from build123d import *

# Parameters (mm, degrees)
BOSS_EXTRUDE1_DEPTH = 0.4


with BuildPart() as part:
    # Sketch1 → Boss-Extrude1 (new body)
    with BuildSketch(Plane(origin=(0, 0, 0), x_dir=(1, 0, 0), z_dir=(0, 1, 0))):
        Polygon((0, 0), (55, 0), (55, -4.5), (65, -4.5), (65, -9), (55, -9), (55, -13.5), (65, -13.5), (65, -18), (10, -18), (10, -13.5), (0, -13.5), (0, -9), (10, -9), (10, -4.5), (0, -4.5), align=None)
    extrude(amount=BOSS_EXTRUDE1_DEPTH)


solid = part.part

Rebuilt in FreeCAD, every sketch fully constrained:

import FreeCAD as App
import Part
import Sketcher

doc = App.newDocument("Part")
params = doc.addObject("Spreadsheet::Sheet", "Params")
for row, (alias, value) in enumerate([
    ("sketch1_width", "55 mm"),
    ("sketch1_width2", "10 mm"),
    ("sketch1_height", "4.5 mm"),
    ("pad1_length", "0.4 mm"),
], start=1):
    params.set(f"A{row}", alias)
    params.set(f"B{row}", "=" + value)
    params.setAlias(f"B{row}", alias)

body = doc.addObject("PartDesign::Body", "Body")

# Sketch on XZ plane
sketch1 = body.newObject("Sketcher::SketchObject", "Sketch")
sketch1.AttachmentSupport = (doc.getObject("XZ_Plane"), [""])
sketch1.MapMode = "FlatFace"
sketch1.addGeometry([
    Part.LineSegment(App.Vector(55, 0, 0), App.Vector(0, 0, 0)),  # 0
    Part.LineSegment(App.Vector(0, 0, 0), App.Vector(0, 4.5, 0)),  # 1
    Part.LineSegment(App.Vector(0, 4.5, 0), App.Vector(10, 4.5, 0)),  # 2
    Part.LineSegment(App.Vector(10, 4.5, 0), App.Vector(10, 9, 0)),  # 3
    Part.LineSegment(App.Vector(10, 9, 0), App.Vector(0, 9, 0)),  # 4
    Part.LineSegment(App.Vector(0, 9, 0), App.Vector(0, 13.5, 0)),  # 5
    Part.LineSegment(App.Vector(0, 13.5, 0), App.Vector(10, 13.5, 0)),  # 6
    Part.LineSegment(App.Vector(10, 13.5, 0), App.Vector(10, 18, 0)),  # 7
    Part.LineSegment(App.Vector(10, 18, 0), App.Vector(65, 18, 0)),  # 8
    Part.LineSegment(App.Vector(65, 18, 0), App.Vector(65, 13.5, 0)),  # 9
    Part.LineSegment(App.Vector(65, 13.5, 0), App.Vector(55, 13.5, 0)),  # 10
    Part.LineSegment(App.Vector(55, 13.5, 0), App.Vector(55, 9, 0)),  # 11
    Part.LineSegment(App.Vector(55, 9, 0), App.Vector(65, 9, 0)),  # 12
    Part.LineSegment(App.Vector(65, 9, 0), App.Vector(65, 4.5, 0)),  # 13
    Part.LineSegment(App.Vector(65, 4.5, 0), App.Vector(55, 4.5, 0)),  # 14
    Part.LineSegment(App.Vector(55, 4.5, 0), App.Vector(55, 0, 0)),  # 15
], False)
sketch1.addConstraint([
    Sketcher.Constraint("Coincident", 0, 2, 1, 1),
    Sketcher.Constraint("Coincident", 1, 2, 2, 1),
    Sketcher.Constraint("Coincident", 2, 2, 3, 1),
    Sketcher.Constraint("Coincident", 3, 2, 4, 1),
    Sketcher.Constraint("Coincident", 4, 2, 5, 1),
    Sketcher.Constraint("Coincident", 5, 2, 6, 1),
    Sketcher.Constraint("Coincident", 6, 2, 7, 1),
    Sketcher.Constraint("Coincident", 7, 2, 8, 1),
    Sketcher.Constraint("Coincident", 8, 2, 9, 1),
    Sketcher.Constraint("Coincident", 9, 2, 10, 1),
    Sketcher.Constraint("Coincident", 10, 2, 11, 1),
    Sketcher.Constraint("Coincident", 11, 2, 12, 1),
    Sketcher.Constraint("Coincident", 12, 2, 13, 1),
    Sketcher.Constraint("Coincident", 13, 2, 14, 1),
    Sketcher.Constraint("Coincident", 14, 2, 15, 1),
    Sketcher.Constraint("Coincident", 15, 2, 0, 1),
    Sketcher.Constraint("Horizontal", 0),
    Sketcher.Constraint("Vertical", 1),
    Sketcher.Constraint("Horizontal", 2),
    Sketcher.Constraint("Vertical", 3),
    Sketcher.Constraint("Horizontal", 4),
    Sketcher.Constraint("Vertical", 5),
    Sketcher.Constraint("Horizontal", 6),
    Sketcher.Constraint("Vertical", 7),
    Sketcher.Constraint("Horizontal", 8),
    Sketcher.Constraint("Vertical", 9),
    Sketcher.Constraint("Horizontal", 10),
    Sketcher.Constraint("Vertical", 11),
    Sketcher.Constraint("Horizontal", 12),
    Sketcher.Constraint("Vertical", 13),
    Sketcher.Constraint("Horizontal", 14),
    Sketcher.Constraint("Vertical", 15),
    Sketcher.Constraint("Coincident", 0, 2, -1, 1),
    Sketcher.Constraint("PointOnObject", 4, 2, -2),
    Sketcher.Constraint("Horizontal", 6, 2, 9, 2),
    Sketcher.Constraint("Horizontal", 4, 2, 11, 2),
    Sketcher.Constraint("Horizontal", 2, 2, 13, 2),
    Sketcher.Constraint("Vertical", 3, 2, 6, 2),
    Sketcher.Constraint("Vertical", 9, 2, 12, 2),
    Sketcher.Constraint("Vertical", 11, 2, 14, 2),
    Sketcher.Constraint("Equal", 0, 8),
    Sketcher.Constraint("Equal", 1, 3),
    Sketcher.Constraint("Equal", 3, 5),
    Sketcher.Constraint("Equal", 5, 7),
    Sketcher.Constraint("DistanceX", 0, 2, 0, 1, 55.0),
    Sketcher.Constraint("DistanceX", 2, 1, 2, 2, 10.0),
    Sketcher.Constraint("DistanceY", 1, 1, 1, 2, 4.5),
])
sketch1.setExpression("Constraints[44]", "Params.sketch1_width")
sketch1.setExpression("Constraints[45]", "Params.sketch1_width2")
sketch1.setExpression("Constraints[46]", "Params.sketch1_height")
pad1 = body.newObject("PartDesign::Pad", "Pad")
pad1.Profile = sketch1
pad1.setExpression("Length", "Params.pad1_length")
pad1.Reversed = True

doc.recompute()
